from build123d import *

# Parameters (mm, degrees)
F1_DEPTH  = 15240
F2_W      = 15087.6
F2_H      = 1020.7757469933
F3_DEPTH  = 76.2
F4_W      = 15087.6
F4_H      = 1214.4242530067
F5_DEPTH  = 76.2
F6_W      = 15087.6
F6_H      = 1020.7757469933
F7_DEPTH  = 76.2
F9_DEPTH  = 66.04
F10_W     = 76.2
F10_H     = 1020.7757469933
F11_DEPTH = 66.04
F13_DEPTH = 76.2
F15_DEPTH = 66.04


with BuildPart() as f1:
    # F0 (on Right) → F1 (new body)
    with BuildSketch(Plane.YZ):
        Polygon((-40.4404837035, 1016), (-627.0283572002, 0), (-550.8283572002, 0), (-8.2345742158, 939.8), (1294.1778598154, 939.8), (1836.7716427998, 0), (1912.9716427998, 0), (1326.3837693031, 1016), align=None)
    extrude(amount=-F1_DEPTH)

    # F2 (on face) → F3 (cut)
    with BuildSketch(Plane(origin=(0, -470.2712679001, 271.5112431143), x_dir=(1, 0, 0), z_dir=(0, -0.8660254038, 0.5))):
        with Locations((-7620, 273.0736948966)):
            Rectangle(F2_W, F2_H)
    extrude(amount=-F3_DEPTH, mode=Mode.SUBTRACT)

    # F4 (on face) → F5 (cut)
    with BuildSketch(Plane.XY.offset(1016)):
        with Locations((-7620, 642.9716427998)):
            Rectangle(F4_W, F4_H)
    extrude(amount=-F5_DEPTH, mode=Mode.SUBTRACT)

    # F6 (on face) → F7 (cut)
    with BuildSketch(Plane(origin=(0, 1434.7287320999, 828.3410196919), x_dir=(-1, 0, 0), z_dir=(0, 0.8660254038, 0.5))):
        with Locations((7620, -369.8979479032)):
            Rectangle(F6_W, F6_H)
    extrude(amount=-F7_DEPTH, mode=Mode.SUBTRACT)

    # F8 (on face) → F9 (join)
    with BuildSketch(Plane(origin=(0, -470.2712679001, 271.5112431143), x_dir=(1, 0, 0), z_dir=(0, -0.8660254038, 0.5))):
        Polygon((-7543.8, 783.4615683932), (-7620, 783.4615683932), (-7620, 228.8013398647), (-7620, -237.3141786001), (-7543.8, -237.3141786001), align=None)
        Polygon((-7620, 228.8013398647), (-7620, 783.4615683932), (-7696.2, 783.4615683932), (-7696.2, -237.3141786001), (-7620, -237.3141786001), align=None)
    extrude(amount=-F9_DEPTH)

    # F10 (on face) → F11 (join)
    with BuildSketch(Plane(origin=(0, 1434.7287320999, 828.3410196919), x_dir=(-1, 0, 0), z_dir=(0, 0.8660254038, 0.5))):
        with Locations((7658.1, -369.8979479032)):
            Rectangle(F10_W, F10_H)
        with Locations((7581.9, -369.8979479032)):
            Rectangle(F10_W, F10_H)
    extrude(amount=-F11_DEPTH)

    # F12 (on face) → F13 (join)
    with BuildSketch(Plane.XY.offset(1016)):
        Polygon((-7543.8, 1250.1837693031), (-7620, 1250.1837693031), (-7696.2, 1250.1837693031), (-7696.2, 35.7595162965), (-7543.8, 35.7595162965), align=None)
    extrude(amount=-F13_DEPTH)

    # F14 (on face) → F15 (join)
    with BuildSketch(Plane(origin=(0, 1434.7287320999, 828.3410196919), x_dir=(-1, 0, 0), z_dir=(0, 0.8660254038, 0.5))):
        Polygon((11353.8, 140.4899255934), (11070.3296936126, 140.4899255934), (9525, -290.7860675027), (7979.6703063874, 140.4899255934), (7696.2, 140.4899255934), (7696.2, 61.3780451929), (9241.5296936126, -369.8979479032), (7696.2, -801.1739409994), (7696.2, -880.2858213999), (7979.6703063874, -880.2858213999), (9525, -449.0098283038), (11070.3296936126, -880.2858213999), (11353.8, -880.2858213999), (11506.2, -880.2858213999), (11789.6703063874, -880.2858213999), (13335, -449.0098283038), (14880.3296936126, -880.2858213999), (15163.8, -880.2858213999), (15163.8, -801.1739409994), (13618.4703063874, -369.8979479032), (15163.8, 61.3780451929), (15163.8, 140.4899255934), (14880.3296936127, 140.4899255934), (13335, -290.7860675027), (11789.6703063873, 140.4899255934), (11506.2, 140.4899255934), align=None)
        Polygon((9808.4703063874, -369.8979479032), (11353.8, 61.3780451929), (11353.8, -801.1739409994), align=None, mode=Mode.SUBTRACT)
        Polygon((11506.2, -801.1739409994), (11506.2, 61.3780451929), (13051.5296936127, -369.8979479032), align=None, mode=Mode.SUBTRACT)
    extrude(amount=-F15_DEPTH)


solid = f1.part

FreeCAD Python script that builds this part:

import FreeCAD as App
import Part
import Sketcher
from FreeCAD import Vector
Q = App.Units.Quantity


def add_polygon(sketch, points):
    """Adds a closed chain of lines whose ends are joined by coincident constraints."""
    first, n = sketch.GeometryCount, len(points)
    for a, b in zip(points, points[1:] + points[:1]):
        sketch.addGeometry(Part.LineSegment(App.Vector(*a, 0), App.Vector(*b, 0)), False)
    for i in range(n):
        sketch.addConstraint(Sketcher.Constraint("Coincident", first + i, 2, first + (i + 1) % n, 1))

doc = App.newDocument("Part")
params = doc.addObject("Spreadsheet::Sheet", "Params")
for row, (alias, value) in enumerate([
    ("sketch1_width", "3 in"),
    ("pad1_length", "600 in"),
    ("sketch2_width", "594 in"),
    ("pocket1_length", "3 in"),
    ("sketch3_width", "594 in"),
    ("pocket2_length", "3 in"),
    ("sketch4_width", "594 in"),
    ("pocket3_length", "3 in"),
    ("sketch5_width", "6 in"),
    ("pad2_length", "2.6 in"),
    ("sketch6_width", "6 in"),
    ("pad3_length", "2.6 in"),
    ("sketch7_width", "6 in"),
    ("pad4_length", "3 in"),
    ("pad5_length", "2.6 in"),
], start=1):
    params.set(f"A{row}", alias)
    params.set(f"B{row}", "=" + value)
    params.setAlias(f"B{row}", alias)

body = doc.addObject("PartDesign::Body", "Body")

sketch1 = doc.addObject("Sketcher::SketchObject", "Sketch")
body.addObject(sketch1)
sketch1.AttachmentSupport = (doc.YZ_Plane, [""])
sketch1.MapMode = "FlatFace"
add_polygon(sketch1, [(-40.440484, 1016), (-627.028357, 0), (-550.828357, 0), (-8.234574, 939.8), (1294.17786, 939.8), (1836.771643, 0), (1912.971643, 0), (1326.383769, 1016)])
sketch1.addConstraint(Sketcher.Constraint("Horizontal", 1))
sketch1.addConstraint(Sketcher.Constraint("Horizontal", 3))
sketch1.addConstraint(Sketcher.Constraint("Horizontal", 5))
sketch1.addConstraint(Sketcher.Constraint("Horizontal", 7))
sketch1.addConstraint(Sketcher.Constraint("PointOnObject", 0, 2, -1))
sketch1.addConstraint(Sketcher.Constraint("PointOnObject", 4, 2, -1))
sketch1.addConstraint(Sketcher.Constraint("Parallel", 0, 2))
sketch1.addConstraint(Sketcher.Constraint("Parallel", 4, 6))
sketch1.addConstraint(Sketcher.Constraint("Equal", 1, 5))
sketch1.addConstraint(Sketcher.Constraint("Equal", 2, 4))
sketch1.addConstraint(Sketcher.Constraint("DistanceX", 1, 1, 1, 2, Q("3 in")))
sketch1.addConstraint(Sketcher.Constraint("DistanceY", -1, 1, 2, 2, Q("37 in")))
sketch1.addConstraint(Sketcher.Constraint("DistanceY", -1, 1, 6, 2, Q("40 in")))
sketch1.addConstraint(Sketcher.Constraint("Angle", 0, Q("-120 deg")))
sketch1.addConstraint(Sketcher.Constraint("DistanceX", 1, 2, 4, 2, Q("94 in")))
sketch1.addConstraint(Sketcher.Constraint("DistanceX", -1, 1, 3, 2, Q("1294.17786 mm")))
sketch1.setExpression("Constraints[18]", "Params.sketch1_width")
pad1 = doc.addObject("PartDesign::Pad", "Pad")
body.addObject(pad1)
pad1.Profile = sketch1
pad1.setExpression("Length", "Params.pad1_length")
pad1.Reversed = True

sketch2 = doc.addObject("Sketcher::SketchObject", "Sketch001")
body.addObject(sketch2)
sketch2.Placement = App.Placement(Vector(0, -470.271268, 271.511243), App.Rotation(Vector(1, 0, 0), Vector(0, 0.5, 0.866025404), Vector(0, -0.866025404, 0.5), "ZXY"))
add_polygon(sketch2, [(-15163.8, 783.461569), (-15163.8, -237.314179), (-76.2, -237.314179), (-76.2, 783.461569)])
sketch2.addConstraint(Sketcher.Constraint("Vertical", 0))
sketch2.addConstraint(Sketcher.Constraint("Horizontal", 1))
sketch2.addConstraint(Sketcher.Constraint("Vertical", 2))
sketch2.addConstraint(Sketcher.Constraint("Horizontal", 3))
sketch2.addConstraint(Sketcher.Constraint("DistanceX", 1, 1, 1, 2, Q("594 in")))
sketch2.addConstraint(Sketcher.Constraint("DistanceX", 0, 2, -1, 1, Q("597 in")))
sketch2.addConstraint(Sketcher.Constraint("DistanceY", 0, 2, 0, 1, Q("1020.775747 mm")))
sketch2.addConstraint(Sketcher.Constraint("DistanceY", 0, 2, -1, 1, Q("237.314179 mm")))
sketch2.setExpression("Constraints[8]", "Params.sketch2_width")
pocket1 = doc.addObject("PartDesign::Pocket", "Pocket")
body.addObject(pocket1)
pocket1.Profile = sketch2
pocket1.setExpression("Length", "Params.pocket1_length")

sketch3 = doc.addObject("Sketcher::SketchObject", "Sketch002")
body.addObject(sketch3)
sketch3.AttachmentSupport = (doc.XY_Plane, [""])
sketch3.MapMode = "FlatFace"
sketch3.AttachmentOffset = App.Placement(Vector(0, 0, 40 * 25.4), App.Rotation())
add_polygon(sketch3, [(-15163.8, 1250.183769), (-15163.8, 35.759516), (-76.2, 35.759516), (-76.2, 1250.183769)])
sketch3.addConstraint(Sketcher.Constraint("Vertical", 0))
sketch3.addConstraint(Sketcher.Constraint("Horizontal", 1))
sketch3.addConstraint(Sketcher.Constraint("Vertical", 2))
sketch3.addConstraint(Sketcher.Constraint("Horizontal", 3))
sketch3.addConstraint(Sketcher.Constraint("DistanceX", 1, 1, 1, 2, Q("594 in")))
sketch3.addConstraint(Sketcher.Constraint("DistanceX", 0, 2, -1, 1, Q("597 in")))
sketch3.addConstraint(Sketcher.Constraint("DistanceY", 0, 2, 0, 1, Q("1214.424253 mm")))
sketch3.addConstraint(Sketcher.Constraint("DistanceY", -1, 1, 2, 2, Q("1250.183769 mm")))
sketch3.setExpression("Constraints[8]", "Params.sketch3_width")
pocket2 = doc.addObject("PartDesign::Pocket", "Pocket001")
body.addObject(pocket2)
pocket2.Profile = sketch3
pocket2.setExpression("Length", "Params.pocket2_length")

sketch4 = doc.addObject("Sketcher::SketchObject", "Sketch003")
body.addObject(sketch4)
sketch4.Placement = App.Placement(Vector(0, 1434.728732, 828.34102), App.Rotation(Vector(-1, 0, 0), Vector(0, -0.5, 0.866025404), Vector(0, 0.866025404, 0.5), "ZXY"))
add_polygon(sketch4, [(76.2, 140.489926), (76.2, -880.285822), (15163.8, -880.285822), (15163.8, 140.489926)])
sketch4.addConstraint(Sketcher.Constraint("Vertical", 0))
sketch4.addConstraint(Sketcher.Constraint("Horizontal", 1))
sketch4.addConstraint(Sketcher.Constraint("Vertical", 2))
sketch4.addConstraint(Sketcher.Constraint("Horizontal", 3))
sketch4.addConstraint(Sketcher.Constraint("DistanceX", 1, 1, 1, 2, Q("594 in")))
sketch4.addConstraint(Sketcher.Constraint("DistanceX", -1, 1, 0, 2, Q("3 in")))
sketch4.addConstraint(Sketcher.Constraint("DistanceY", 0, 2, 0, 1, Q("1020.775747 mm")))
sketch4.addConstraint(Sketcher.Constraint("DistanceY", 0, 2, -1, 1, Q("880.285822 mm")))
sketch4.setExpression("Constraints[8]", "Params.sketch4_width")
pocket3 = doc.addObject("PartDesign::Pocket", "Pocket002")
body.addObject(pocket3)
pocket3.Profile = sketch4
pocket3.setExpression("Length", "Params.pocket3_length")

sketch5 = doc.addObject("Sketcher::SketchObject", "Sketch004")
body.addObject(sketch5)
sketch5.Placement = App.Placement(Vector(0, -470.271268, 271.511243), App.Rotation(Vector(1, 0, 0), Vector(0, 0.5, 0.866025404), Vector(0, -0.866025404, 0.5), "ZXY"))
add_polygon(sketch5, [(-7543.8, 783.461569), (-7696.2, 783.461569), (-7696.2, -237.314179), (-7543.8, -237.314179)])
sketch5.addConstraint(Sketcher.Constraint("Horizontal", 0))
sketch5.addConstraint(Sketcher.Constraint("Vertical", 1))
sketch5.addConstraint(Sketcher.Constraint("Horizontal", 2))
sketch5.addConstraint(Sketcher.Constraint("Vertical", 3))
sketch5.addConstraint(Sketcher.Constraint("DistanceX", 0, 2, 0, 1, Q("6 in")))
sketch5.addConstraint(Sketcher.Constraint("DistanceX", 0, 2, -1, 1, Q("303 in")))
sketch5.addConstraint(Sketcher.Constraint("DistanceY", 1, 2, 1, 1, Q("1020.775747 mm")))
sketch5.addConstraint(Sketcher.Constraint("DistanceY", -1, 1, 0, 2, Q("783.461569 mm")))
sketch5.setExpression("Constraints[8]", "Params.sketch5_width")
pad2 = doc.addObject("PartDesign::Pad", "Pad001")
body.addObject(pad2)
pad2.Profile = sketch5
pad2.setExpression("Length", "Params.pad2_length")
pad2.Reversed = True

sketch6 = doc.addObject("Sketcher::SketchObject", "Sketch005")
body.addObject(sketch6)
sketch6.Placement = App.Placement(Vector(0, 1434.728732, 828.34102), App.Rotation(Vector(-1, 0, 0), Vector(0, -0.5, 0.866025404), Vector(0, 0.866025404, 0.5), "ZXY"))
add_polygon(sketch6, [(7696.2, -880.285822), (7696.2, 140.489926), (7543.8, 140.489926), (7543.8, -880.285822)])
sketch6.addConstraint(Sketcher.Constraint("Vertical", 0))
sketch6.addConstraint(Sketcher.Constraint("Horizontal", 1))
sketch6.addConstraint(Sketcher.Constraint("Vertical", 2))
sketch6.addConstraint(Sketcher.Constraint("Horizontal", 3))
sketch6.addConstraint(Sketcher.Constraint("DistanceX", 1, 2, 1, 1, Q("6 in")))
sketch6.addConstraint(Sketcher.Constraint("DistanceX", -1, 1, 0, 2, Q("303 in")))
sketch6.addConstraint(Sketcher.Constraint("DistanceY", 0, 1, 0, 2, Q("1020.775747 mm")))
sketch6.addConstraint(Sketcher.Constraint("DistanceY", 2, 2, -1, 1, Q("880.285822 mm")))
sketch6.setExpression("Constraints[8]", "Params.sketch6_width")
pad3 = doc.addObject("PartDesign::Pad", "Pad002")
body.addObject(pad3)
pad3.Profile = sketch6
pad3.setExpression("Length", "Params.pad3_length")
pad3.Reversed = True

sketch7 = doc.addObject("Sketcher::SketchObject", "Sketch006")
body.addObject(sketch7)
sketch7.AttachmentSupport = (doc.XY_Plane, [""])
sketch7.MapMode = "FlatFace"
sketch7.AttachmentOffset = App.Placement(Vector(0, 0, 40 * 25.4), App.Rotation())
add_polygon(sketch7, [(-7543.8, 1250.183769), (-7696.2, 1250.183769), (-7696.2, 35.759516), (-7543.8, 35.759516)])
sketch7.addConstraint(Sketcher.Constraint("Horizontal", 0))
sketch7.addConstraint(Sketcher.Constraint("Vertical", 1))
sketch7.addConstraint(Sketcher.Constraint("Horizontal", 2))
sketch7.addConstraint(Sketcher.Constraint("Vertical", 3))
sketch7.addConstraint(Sketcher.Constraint("DistanceX", 0, 2, 0, 1, Q("6 in")))
sketch7.addConstraint(Sketcher.Constraint("DistanceX", 0, 2, -1, 1, Q("303 in")))
sketch7.addConstraint(Sketcher.Constraint("DistanceY", 1, 2, 1, 1, Q("1214.424253 mm")))
sketch7.addConstraint(Sketcher.Constraint("DistanceY", -1, 1, 0, 2, Q("1250.183769 mm")))
sketch7.setExpression("Constraints[8]", "Params.sketch7_width")
pad4 = doc.addObject("PartDesign::Pad", "Pad003")
body.addObject(pad4)
pad4.Profile = sketch7
pad4.setExpression("Length", "Params.pad4_length")
pad4.Reversed = True

sketch8 = doc.addObject("Sketcher::SketchObject", "Sketch007")
body.addObject(sketch8)
sketch8.Placement = App.Placement(Vector(0, 1434.728732, 828.34102), App.Rotation(Vector(-1, 0, 0), Vector(0, -0.5, 0.866025404), Vector(0, 0.866025404, 0.5), "ZXY"))
add_polygon(sketch8, [(11070.329694, 140.489926), (9525, -290.786068), (7979.670306, 140.489926), (7696.2, 140.489926), (7696.2, 61.378045), (9241.529694, -369.897948), (7696.2, -801.173941), (7696.2, -880.285822), (7979.670306, -880.285822), (9525, -449.009828), (11070.329694, -880.285822), (11789.670306, -880.285822), (13335, -449.009828), (14880.329694, -880.285822), (15163.8, -880.285822), (15163.8, -801.173941), (13618.470306, -369.897948), (15163.8, 61.378045), (15163.8, 140.489926), (14880.329694, 140.489926), (13335, -290.786068), (11789.670306, 140.489926)])
add_polygon(sketch8, [(11353.8, -801.173941), (9808.470306, -369.897948), (11353.8, 61.378045)])
add_polygon(sketch8, [(13051.529694, -369.897948), (11506.2, -801.173941), (11506.2, 61.378045)])
sketch8.addConstraint(Sketcher.Constraint("Horizontal", 2))
sketch8.addConstraint(Sketcher.Constraint("Vertical", 3))
sketch8.addConstraint(Sketcher.Constraint("Vertical", 6))
sketch8.addConstraint(Sketcher.Constraint("Horizontal", 7))
sketch8.addConstraint(Sketcher.Constraint("Horizontal", 10))
sketch8.addConstraint(Sketcher.Constraint("Horizontal", 13))
sketch8.addConstraint(Sketcher.Constraint("Vertical", 14))
sketch8.addConstraint(Sketcher.Constraint("Vertical", 17))
sketch8.addConstraint(Sketcher.Constraint("Horizontal", 18))
sketch8.addConstraint(Sketcher.Constraint("Horizontal", 21))
sketch8.addConstraint(Sketcher.Constraint("Vertical", 24))
sketch8.addConstraint(Sketcher.Constraint("Vertical", 26))
sketch8.addConstraint(Sketcher.Constraint("Parallel", 1, 4))
sketch8.addConstraint(Sketcher.Constraint("Parallel", 0, 5))
sketch8.addConstraint(Sketcher.Constraint("Parallel", 5, 8))
sketch8.addConstraint(Sketcher.Constraint("Parallel", 4, 9))
sketch8.addConstraint(Sketcher.Constraint("Parallel", 8, 11))
sketch8.addConstraint(Sketcher.Constraint("Parallel", 9, 12))
sketch8.addConstraint(Sketcher.Constraint("Parallel", 12, 15))
sketch8.addConstraint(Sketcher.Constraint("Parallel", 11, 16))
sketch8.addConstraint(Sketcher.Constraint("Parallel", 16, 19))
sketch8.addConstraint(Sketcher.Constraint("Parallel", 15, 20))
sketch8.addConstraint(Sketcher.Constraint("Parallel", 20, 22))
sketch8.addConstraint(Sketcher.Constraint("Parallel", 19, 23))
sketch8.addConstraint(Sketcher.Constraint("Parallel", 23, 25))
sketch8.addConstraint(Sketcher.Constraint("Parallel", 22, 27))
sketch8.addConstraint(Sketcher.Constraint("Horizontal", 7, 2, 9, 2))
sketch8.addConstraint(Sketcher.Constraint("Horizontal", 8, 2, 11, 2))
sketch8.addConstraint(Sketcher.Constraint("Horizontal", 10, 2, 12, 2))
sketch8.addConstraint(Sketcher.Constraint("Horizontal", 5, 2, 14, 2))
sketch8.addConstraint(Sketcher.Constraint("Horizontal", 4, 2, 15, 2))
sketch8.addConstraint(Sketcher.Constraint("Horizontal", 3, 2, 16, 2))
sketch8.addConstraint(Sketcher.Constraint("Horizontal", 2, 2, 17, 2))
sketch8.addConstraint(Sketcher.Constraint("Horizontal", 0, 2, 19, 2))
sketch8.addConstraint(Sketcher.Constraint("Horizontal", 18, 2, 20, 2))
sketch8.addConstraint(Sketcher.Constraint("Horizontal", 15, 2, 22, 2))
sketch8.addConstraint(Sketcher.Constraint("Horizontal", 16, 2, 23, 2))
sketch8.addConstraint(Sketcher.Constraint("Horizontal", 14, 2, 24, 2))
sketch8.addConstraint(Sketcher.Constraint("Horizontal", 24, 2, 25, 2))
sketch8.addConstraint(Sketcher.Constraint("Horizontal", 23, 2, 26, 2))
sketch8.addConstraint(Sketcher.Constraint("Horizontal", 22, 2, 27, 2))
sketch8.addConstraint(Sketcher.Constraint("Vertical", 1, 2, 7, 2))
sketch8.addConstraint(Sketcher.Constraint("Vertical", 0, 2, 8, 2))
sketch8.addConstraint(Sketcher.Constraint("Vertical", 12, 2, 18, 2))
sketch8.addConstraint(Sketcher.Constraint("Equal", 7, 13))
sketch8.addConstraint(Sketcher.Constraint("Equal", 3, 6))
sketch8.addConstraint(Sketcher.Constraint("Equal", 1, 4))
sketch8.addConstraint(Sketcher.Constraint("DistanceX", -1, 1, 0, 2, Q("375 in")))
sketch8.addConstraint(Sketcher.Constraint("DistanceX", -1, 1, 2, 2, Q("303 in")))
sketch8.addConstraint(Sketcher.Constraint("DistanceX", -1, 1, 11, 2, Q("525 in")))
sketch8.addConstraint(Sketcher.Constraint("DistanceX", -1, 1, 23, 2, Q("447 in")))
sketch8.addConstraint(Sketcher.Constraint("DistanceX", -1, 1, 25, 2, Q("453 in")))
sketch8.addConstraint(Sketcher.Constraint("DistanceY", 3, 2, 3, 1, Q("79.11188 mm")))
sketch8.addConstraint(Sketcher.Constraint("DistanceX", 2, 2, 2, 1, Q("283.470306 mm")))
sketch8.addConstraint(Sketcher.Constraint("DistanceY", 24, 2, 24, 1, Q("862.551987 mm")))
sketch8.addConstraint(Sketcher.Constraint("DistanceY", 4, 2, -1, 1, Q("369.897948 mm")))
pad5 = doc.addObject("PartDesign::Pad", "Pad004")
body.addObject(pad5)
pad5.Profile = sketch8
pad5.setExpression("Length", "Params.pad5_length")
pad5.Reversed = True

doc.recompute()
